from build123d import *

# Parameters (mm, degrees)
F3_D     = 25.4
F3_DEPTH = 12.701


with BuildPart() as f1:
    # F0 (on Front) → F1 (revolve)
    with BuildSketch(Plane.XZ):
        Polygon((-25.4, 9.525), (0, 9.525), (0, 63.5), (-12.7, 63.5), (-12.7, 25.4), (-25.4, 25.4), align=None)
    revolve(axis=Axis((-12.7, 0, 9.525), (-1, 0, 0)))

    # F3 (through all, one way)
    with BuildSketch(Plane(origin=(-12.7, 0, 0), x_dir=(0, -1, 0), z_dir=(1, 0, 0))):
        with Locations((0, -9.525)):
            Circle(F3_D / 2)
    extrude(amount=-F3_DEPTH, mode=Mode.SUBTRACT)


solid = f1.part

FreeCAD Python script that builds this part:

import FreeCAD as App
import Part
import Sketcher
Q = App.Units.Quantity


def add_polygon(sketch, points):
    """Adds a closed chain of lines whose ends are joined by coincident constraints."""
    first, n = sketch.GeometryCount, len(points)
    for a, b in zip(points, points[1:] + points[:1]):
        sketch.addGeometry(Part.LineSegment(App.Vector(*a, 0), App.Vector(*b, 0)), False)
    for i in range(n):
        sketch.addConstraint(Sketcher.Constraint("Coincident", first + i, 2, first + (i + 1) % n, 1))

doc = App.newDocument("Part")
body = doc.addObject("PartDesign::Body", "Body")

sketch1 = body.newObject("Sketcher::SketchObject", "Sketch")
sketch1.AttachmentSupport = (doc.getObject("XZ_Plane"), [""])
sketch1.MapMode = "FlatFace"
add_polygon(sketch1, [(-25.4, 9.525), (0, 9.525), (0, 63.5), (-12.7, 63.5), (-12.7, 25.4), (-25.4, 25.4)])
sketch1.addGeometry(Part.LineSegment(App.Vector(0, 9.525, 0), App.Vector(-25.4, 9.525, 0)), True)
sketch1.addConstraint([
    Sketcher.Constraint("Horizontal", 0),
    Sketcher.Constraint("Vertical", 1),
    Sketcher.Constraint("Horizontal", 2),
    Sketcher.Constraint("Vertical", 3),
    Sketcher.Constraint("Horizontal", 4),
    Sketcher.Constraint("Vertical", 5),
    Sketcher.Constraint("Horizontal", 6),
    Sketcher.Constraint("Coincident", 6, 1, 0, 2),
    Sketcher.Constraint("PointOnObject", 0, 2, -2),
    Sketcher.Constraint("Vertical", 4, 2, 6, 2),
    Sketcher.Constraint("Equal", 2, 4),
    Sketcher.Constraint("DistanceX", 0, 1, 0, 2, Q("1 in")),
    Sketcher.Constraint("DistanceY", 3, 2, 3, 1, Q("1.5 in")),
    Sketcher.Constraint("DistanceY", -1, 1, 3, 2, Q("1 in")),
    Sketcher.Constraint("DistanceY", 1, 1, 1, 2, Q("2.125 in")),
])
revolution = body.newObject("PartDesign::Revolution", "Revolution")
revolution.Profile = sketch1
revolution.ReferenceAxis = (sketch1, ["Axis0"])
revolution.Angle = 360

sketch2 = body.newObject("Sketcher::SketchObject", "Sketch001")
sketch2.AttachmentSupport = (doc.getObject("YZ_Plane"), [""])
sketch2.MapMode = "FlatFace"
sketch2.AttachmentOffset = App.Placement(App.Vector(0, 0, -0.5 * 25.4), App.Rotation())
sketch2.addGeometry(Part.Circle(App.Vector(0, 9.525, 0), App.Vector(0, 0, 1), 12.7), False)
sketch2.addConstraint([
    Sketcher.Constraint("PointOnObject", 0, 3, -2),
    Sketcher.Constraint("Diameter", 0, Q("1 in")),
    Sketcher.Constraint("DistanceY", -1, 1, 0, 3, Q("0.375 in")),
])
pocket1 = body.newObject("PartDesign::Pocket", "Pocket")
pocket1.Profile = sketch2
pocket1.Type = "ThroughAll"

doc.recompute()
